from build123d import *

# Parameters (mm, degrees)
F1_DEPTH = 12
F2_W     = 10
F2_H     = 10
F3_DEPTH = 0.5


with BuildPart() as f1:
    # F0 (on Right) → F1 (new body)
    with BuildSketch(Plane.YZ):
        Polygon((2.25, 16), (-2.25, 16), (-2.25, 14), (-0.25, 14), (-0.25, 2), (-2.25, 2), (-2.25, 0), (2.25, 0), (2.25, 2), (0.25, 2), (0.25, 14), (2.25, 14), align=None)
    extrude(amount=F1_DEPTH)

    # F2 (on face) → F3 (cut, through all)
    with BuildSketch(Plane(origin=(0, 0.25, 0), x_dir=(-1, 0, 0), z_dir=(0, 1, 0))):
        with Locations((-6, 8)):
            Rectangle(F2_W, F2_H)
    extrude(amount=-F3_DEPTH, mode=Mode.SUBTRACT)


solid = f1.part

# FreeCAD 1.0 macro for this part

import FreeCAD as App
import Part
import Sketcher

doc = App.newDocument("Part")
body = doc.addObject("PartDesign::Body", "Body")

sketch1 = body.newObject("Sketcher::SketchObject", "Sketch")
sketch1.AttachmentSupport = (doc.getObject("YZ_Plane"), [""])
sketch1.MapMode = "FlatFace"
sketch1.addGeometry([
    Part.LineSegment(App.Vector(2.2, 16, 0), App.Vector(-2.2, 16, 0)),
    Part.LineSegment(App.Vector(-2.2, 16, 0), App.Vector(-2.2, 14, 0)),
    Part.LineSegment(App.Vector(-2.2, 14, 0), App.Vector(-0.2, 14, 0)),
    Part.LineSegment(App.Vector(-0.2, 14, 0), App.Vector(-0.2, 2, 0)),
    Part.LineSegment(App.Vector(-0.2, 2, 0), App.Vector(-2.2, 2, 0)),
    Part.LineSegment(App.Vector(-2.2, 2, 0), App.Vector(-2.2, 0, 0)),
    Part.LineSegment(App.Vector(-2.2, 0, 0), App.Vector(2.2, 0, 0)),
    Part.LineSegment(App.Vector(2.2, 0, 0), App.Vector(2.2, 2, 0)),
    Part.LineSegment(App.Vector(2.2, 2, 0), App.Vector(0.2, 2, 0)),
    Part.LineSegment(App.Vector(0.2, 2, 0), App.Vector(0.2, 14, 0)),
    Part.LineSegment(App.Vector(0.2, 14, 0), App.Vector(2.2, 14, 0)),
    Part.LineSegment(App.Vector(2.2, 14, 0), App.Vector(2.2, 16, 0)),
], False)
sketch1.addConstraint([
    Sketcher.Constraint("Coincident", 0, 2, 1, 1),
    Sketcher.Constraint("Coincident", 1, 2, 2, 1),
    Sketcher.Constraint("Coincident", 2, 2, 3, 1),
    Sketcher.Constraint("Coincident", 3, 2, 4, 1),
    Sketcher.Constraint("Coincident", 4, 2, 5, 1),
    Sketcher.Constraint("Coincident", 5, 2, 6, 1),
    Sketcher.Constraint("Coincident", 6, 2, 7, 1),
    Sketcher.Constraint("Coincident", 7, 2, 8, 1),
    Sketcher.Constraint("Coincident", 8, 2, 9, 1),
    Sketcher.Constraint("Coincident", 9, 2, 10, 1),
    Sketcher.Constraint("Coincident", 10, 2, 11, 1),
    Sketcher.Constraint("Coincident", 11, 2, 0, 1),
    Sketcher.Constraint("Horizontal", 0),
    Sketcher.Constraint("Vertical", 1),
    Sketcher.Constraint("Horizontal", 2),
    Sketcher.Constraint("Vertical", 3),
    Sketcher.Constraint("Horizontal", 4),
    Sketcher.Constraint("Vertical", 5),
    Sketcher.Constraint("Horizontal", 6),
    Sketcher.Constraint("Vertical", 7),
    Sketcher.Constraint("Horizontal", 8),
    Sketcher.Constraint("Vertical", 9),
    Sketcher.Constraint("Horizontal", 10),
    Sketcher.Constraint("Vertical", 11),
    Sketcher.Constraint("Symmetric", 5, 2, 6, 2, -1, 1),
    Sketcher.Constraint("Symmetric", 3, 2, 8, 2, -2),
    Sketcher.Constraint("Symmetric", 1, 2, 10, 2, -2),
    Sketcher.Constraint("Vertical", 1, 2, 4, 2),
    Sketcher.Constraint("Equal", 10, 1),
    Sketcher.Constraint("Equal", 1, 5),
    Sketcher.Constraint("DistanceX", 2, 1, 2, 2, 2.0),
    Sketcher.Constraint("DistanceY", 3, 2, 3, 1, 12.0),
    Sketcher.Constraint("DistanceX", 0, 2, 0, 1, 4.5),
])
pad1 = body.newObject("PartDesign::Pad", "Pad")
pad1.Profile = sketch1
pad1.Length = 12

sketch2 = body.newObject("Sketcher::SketchObject", "Sketch001")
sketch2.AttachmentSupport = (doc.getObject("XZ_Plane"), [""])
sketch2.MapMode = "FlatFace"
sketch2.AttachmentOffset = App.Placement(App.Vector(0, 0, -0.25), App.Rotation())
sketch2.addGeometry([
    Part.LineSegment(App.Vector(11, 13, 0), App.Vector(11, 3, 0)),
    Part.LineSegment(App.Vector(11, 3, 0), App.Vector(1, 3, 0)),
    Part.LineSegment(App.Vector(1, 3, 0), App.Vector(1, 13, 0)),
    Part.LineSegment(App.Vector(1, 13, 0), App.Vector(11, 13, 0)),
], False)
sketch2.addConstraint([
    Sketcher.Constraint("Coincident", 0, 2, 1, 1),
    Sketcher.Constraint("Coincident", 1, 2, 2, 1),
    Sketcher.Constraint("Coincident", 2, 2, 3, 1),
    Sketcher.Constraint("Coincident", 3, 2, 0, 1),
    Sketcher.Constraint("Vertical", 0),
    Sketcher.Constraint("Horizontal", 1),
    Sketcher.Constraint("Vertical", 2),
    Sketcher.Constraint("Horizontal", 3),
    Sketcher.Constraint("Equal", 3, 0),
    Sketcher.Constraint("DistanceX", 1, 2, 1, 1, 10.0),
    Sketcher.Constraint("DistanceX", -1, 1, 0, 2, 11.0),
    Sketcher.Constraint("DistanceY", -1, 1, 0, 2, 3.0),
])
pocket1 = body.newObject("PartDesign::Pocket", "Pocket")
pocket1.Profile = sketch2
pocket1.Type = "ThroughAll"
pocket1.Reversed = True

doc.recompute()
